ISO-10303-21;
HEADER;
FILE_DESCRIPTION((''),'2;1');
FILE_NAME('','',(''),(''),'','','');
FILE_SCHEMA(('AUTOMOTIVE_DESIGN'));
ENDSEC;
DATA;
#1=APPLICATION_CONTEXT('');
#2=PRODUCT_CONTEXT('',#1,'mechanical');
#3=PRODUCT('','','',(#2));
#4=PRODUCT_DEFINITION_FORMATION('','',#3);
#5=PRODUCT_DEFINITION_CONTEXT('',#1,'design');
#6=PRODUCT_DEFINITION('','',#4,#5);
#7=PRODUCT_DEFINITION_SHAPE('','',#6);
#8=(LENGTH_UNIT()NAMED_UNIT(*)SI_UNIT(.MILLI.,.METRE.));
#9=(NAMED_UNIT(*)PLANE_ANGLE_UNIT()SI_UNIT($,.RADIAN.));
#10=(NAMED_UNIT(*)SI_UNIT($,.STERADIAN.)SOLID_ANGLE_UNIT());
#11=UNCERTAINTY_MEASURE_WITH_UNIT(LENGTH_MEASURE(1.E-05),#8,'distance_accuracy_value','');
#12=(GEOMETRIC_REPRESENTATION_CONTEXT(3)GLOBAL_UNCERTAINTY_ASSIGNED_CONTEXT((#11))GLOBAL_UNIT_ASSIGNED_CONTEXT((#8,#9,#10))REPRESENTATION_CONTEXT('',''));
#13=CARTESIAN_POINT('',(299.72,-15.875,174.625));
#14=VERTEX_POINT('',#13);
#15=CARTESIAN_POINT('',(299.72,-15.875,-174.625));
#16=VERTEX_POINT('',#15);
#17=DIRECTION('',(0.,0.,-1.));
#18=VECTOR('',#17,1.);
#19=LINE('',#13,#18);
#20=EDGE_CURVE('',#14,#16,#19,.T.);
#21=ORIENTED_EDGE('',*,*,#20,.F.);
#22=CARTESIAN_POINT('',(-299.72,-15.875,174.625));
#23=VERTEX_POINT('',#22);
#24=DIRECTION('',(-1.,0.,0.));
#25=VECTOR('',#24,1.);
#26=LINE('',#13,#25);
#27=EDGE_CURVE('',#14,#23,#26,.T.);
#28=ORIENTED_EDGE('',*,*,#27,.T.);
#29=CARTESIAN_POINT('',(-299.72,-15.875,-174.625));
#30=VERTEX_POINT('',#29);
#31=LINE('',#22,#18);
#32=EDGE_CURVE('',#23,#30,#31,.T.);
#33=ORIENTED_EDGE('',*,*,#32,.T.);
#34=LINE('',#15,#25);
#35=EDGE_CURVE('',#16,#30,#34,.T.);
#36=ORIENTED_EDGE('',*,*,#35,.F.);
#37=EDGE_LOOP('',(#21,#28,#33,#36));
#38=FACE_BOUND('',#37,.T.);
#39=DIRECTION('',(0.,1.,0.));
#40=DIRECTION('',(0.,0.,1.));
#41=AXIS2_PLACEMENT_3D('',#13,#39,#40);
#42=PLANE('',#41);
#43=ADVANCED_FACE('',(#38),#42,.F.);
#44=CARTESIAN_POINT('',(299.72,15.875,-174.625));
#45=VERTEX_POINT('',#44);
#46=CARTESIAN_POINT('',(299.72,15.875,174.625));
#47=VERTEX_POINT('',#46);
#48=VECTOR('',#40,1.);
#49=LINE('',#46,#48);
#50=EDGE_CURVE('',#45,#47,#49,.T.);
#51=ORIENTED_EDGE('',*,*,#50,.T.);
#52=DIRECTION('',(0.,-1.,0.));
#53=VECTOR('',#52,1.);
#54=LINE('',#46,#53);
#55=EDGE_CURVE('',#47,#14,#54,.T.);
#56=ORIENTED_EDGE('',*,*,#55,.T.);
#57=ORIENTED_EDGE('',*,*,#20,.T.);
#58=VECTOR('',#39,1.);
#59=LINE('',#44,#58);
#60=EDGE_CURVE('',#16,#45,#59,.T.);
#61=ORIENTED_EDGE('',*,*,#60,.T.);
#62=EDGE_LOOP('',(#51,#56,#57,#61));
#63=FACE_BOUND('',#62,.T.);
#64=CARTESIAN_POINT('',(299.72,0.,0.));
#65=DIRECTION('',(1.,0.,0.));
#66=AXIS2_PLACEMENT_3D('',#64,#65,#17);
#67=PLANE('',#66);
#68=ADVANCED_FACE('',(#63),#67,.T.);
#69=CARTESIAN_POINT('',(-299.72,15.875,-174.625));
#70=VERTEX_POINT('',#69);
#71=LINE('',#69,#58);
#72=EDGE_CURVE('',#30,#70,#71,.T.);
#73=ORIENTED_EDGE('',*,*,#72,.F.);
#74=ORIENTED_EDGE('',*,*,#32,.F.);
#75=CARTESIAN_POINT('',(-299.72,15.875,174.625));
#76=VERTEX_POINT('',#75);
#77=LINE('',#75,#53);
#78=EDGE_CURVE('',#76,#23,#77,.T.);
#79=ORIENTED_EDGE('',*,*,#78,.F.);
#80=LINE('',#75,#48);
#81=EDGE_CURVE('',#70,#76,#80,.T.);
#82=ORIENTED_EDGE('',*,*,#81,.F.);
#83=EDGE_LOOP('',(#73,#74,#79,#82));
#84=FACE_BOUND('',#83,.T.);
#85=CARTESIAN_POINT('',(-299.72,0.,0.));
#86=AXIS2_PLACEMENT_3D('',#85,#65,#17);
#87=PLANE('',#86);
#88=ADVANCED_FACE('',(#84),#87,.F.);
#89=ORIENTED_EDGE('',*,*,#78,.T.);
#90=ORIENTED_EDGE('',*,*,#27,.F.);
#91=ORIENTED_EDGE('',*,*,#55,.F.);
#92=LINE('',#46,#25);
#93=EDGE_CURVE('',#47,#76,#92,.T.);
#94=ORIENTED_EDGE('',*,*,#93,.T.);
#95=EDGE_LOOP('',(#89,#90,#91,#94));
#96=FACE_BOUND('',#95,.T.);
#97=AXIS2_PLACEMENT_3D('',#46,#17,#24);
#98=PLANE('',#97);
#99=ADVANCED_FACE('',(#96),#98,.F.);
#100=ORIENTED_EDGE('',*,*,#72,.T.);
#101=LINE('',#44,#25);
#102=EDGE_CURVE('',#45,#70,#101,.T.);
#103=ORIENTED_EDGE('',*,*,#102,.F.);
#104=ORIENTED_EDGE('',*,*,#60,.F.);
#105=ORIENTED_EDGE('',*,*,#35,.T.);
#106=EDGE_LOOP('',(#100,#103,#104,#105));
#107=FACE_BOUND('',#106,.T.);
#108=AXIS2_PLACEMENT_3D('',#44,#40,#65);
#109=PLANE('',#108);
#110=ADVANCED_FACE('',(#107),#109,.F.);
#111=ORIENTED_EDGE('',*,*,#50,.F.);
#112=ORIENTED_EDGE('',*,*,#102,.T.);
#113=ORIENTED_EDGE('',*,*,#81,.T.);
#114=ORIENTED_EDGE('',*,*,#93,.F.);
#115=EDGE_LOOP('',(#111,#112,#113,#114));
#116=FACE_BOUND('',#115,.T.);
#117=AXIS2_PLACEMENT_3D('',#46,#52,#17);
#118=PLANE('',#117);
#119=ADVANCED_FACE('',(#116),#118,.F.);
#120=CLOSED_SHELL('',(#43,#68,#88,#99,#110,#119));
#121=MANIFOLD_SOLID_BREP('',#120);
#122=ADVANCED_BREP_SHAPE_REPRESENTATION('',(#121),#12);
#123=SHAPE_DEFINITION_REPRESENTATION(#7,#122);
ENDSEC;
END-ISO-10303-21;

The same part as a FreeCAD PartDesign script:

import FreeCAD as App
import Part
import Sketcher
from FreeCAD import Vector
Q = App.Units.Quantity


def add_polygon(sketch, points):
    """Adds a closed chain of lines whose ends are joined by coincident constraints."""
    first, n = sketch.GeometryCount, len(points)
    for a, b in zip(points, points[1:] + points[:1]):
        sketch.addGeometry(Part.LineSegment(App.Vector(*a, 0), App.Vector(*b, 0)), False)
    for i in range(n):
        sketch.addConstraint(Sketcher.Constraint("Coincident", first + i, 2, first + (i + 1) % n, 1))

doc = App.newDocument("Part")
params = doc.addObject("Spreadsheet::Sheet", "Params")
for row, (alias, value) in enumerate([
    ("sketch1_width", "1.25 in"),
    ("sketch1_height", "13.75 in"),
    ("pad1_length", "23.6 in"),
], start=1):
    params.set(f"A{row}", alias)
    params.set(f"B{row}", "=" + value)
    params.setAlias(f"B{row}", alias)

body = doc.addObject("PartDesign::Body", "Body")

# Sketch on YZ plane
sketch1 = body.newObject("Sketcher::SketchObject", "Sketch")
sketch1.AttachmentSupport = (doc.getObject("YZ_Plane"), [""])
sketch1.MapMode = "FlatFace"
add_polygon(sketch1, [(16, 175), (-16, 175), (-16, -175), (16, -175)])  # lines 0-3
sketch1.addConstraint([
    Sketcher.Constraint("Horizontal", 0),
    Sketcher.Constraint("Vertical", 1),
    Sketcher.Constraint("Horizontal", 2),
    Sketcher.Constraint("Vertical", 3),
    Sketcher.Constraint("Symmetric", 0, 2, 2, 2, -1, 1),
    Sketcher.Constraint("DistanceX", 0, 2, 0, 1, Q("1.25 in")),
    Sketcher.Constraint("DistanceY", 1, 2, 1, 1, Q("13.75 in")),
])
sketch1.setExpression("Constraints[9]", "Params.sketch1_width")
sketch1.setExpression("Constraints[10]", "Params.sketch1_height")
pad1 = body.newObject("PartDesign::Pad", "Pad")
pad1.Profile = sketch1
pad1.setExpression("Length", "Params.pad1_length")
pad1.Midplane = True

doc.recompute()
